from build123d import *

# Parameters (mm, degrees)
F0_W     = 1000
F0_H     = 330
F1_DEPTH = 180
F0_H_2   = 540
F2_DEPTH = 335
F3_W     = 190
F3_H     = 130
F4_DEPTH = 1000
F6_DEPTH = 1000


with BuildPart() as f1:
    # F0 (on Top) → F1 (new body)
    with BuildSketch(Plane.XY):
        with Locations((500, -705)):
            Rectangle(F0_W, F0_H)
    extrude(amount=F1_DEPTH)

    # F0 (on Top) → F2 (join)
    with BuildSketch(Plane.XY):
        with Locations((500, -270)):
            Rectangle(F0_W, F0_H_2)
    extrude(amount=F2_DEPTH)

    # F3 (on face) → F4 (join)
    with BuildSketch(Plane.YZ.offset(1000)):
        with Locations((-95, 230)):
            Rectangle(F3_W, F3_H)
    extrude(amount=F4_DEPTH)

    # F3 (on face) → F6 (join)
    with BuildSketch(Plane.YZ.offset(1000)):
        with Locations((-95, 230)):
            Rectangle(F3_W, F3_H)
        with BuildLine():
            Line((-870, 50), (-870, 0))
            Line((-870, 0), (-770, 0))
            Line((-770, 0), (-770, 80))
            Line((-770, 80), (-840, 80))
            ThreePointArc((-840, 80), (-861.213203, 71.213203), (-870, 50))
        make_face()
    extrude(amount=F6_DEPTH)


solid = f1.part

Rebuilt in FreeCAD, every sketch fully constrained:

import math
import FreeCAD as App
import Part
import Sketcher

V = App.Vector
Q = App.Units.Quantity


def add_polygon(sketch, points):
    """Adds a closed chain of lines whose ends are joined by coincident constraints."""
    first, n = sketch.GeometryCount, len(points)
    for a, b in zip(points, points[1:] + points[:1]):
        sketch.addGeometry(Part.LineSegment(App.Vector(*a, 0), App.Vector(*b, 0)), False)
    for i in range(n):
        sketch.addConstraint(Sketcher.Constraint("Coincident", first + i, 2, first + (i + 1) % n, 1))

doc = App.newDocument("Part")
body = doc.addObject("PartDesign::Body", "Body")

sketch1 = body.newObject("Sketcher::SketchObject", "Sketch")
sketch1.AttachmentSupport = (doc.getObject("XY_Plane"), [""])
sketch1.MapMode = "FlatFace"
add_polygon(sketch1, [(0, -540), (0, -870), (1000, -870), (1000, -540)])
sketch1.addConstraint([
    Sketcher.Constraint("Vertical", 0),
    Sketcher.Constraint("Horizontal", 1),
    Sketcher.Constraint("Vertical", 2),
    Sketcher.Constraint("Horizontal", 3),
    Sketcher.Constraint("PointOnObject", 0, 2, -2),
    Sketcher.Constraint("DistanceX", 1, 1, 1, 2, Q("1000 mm")),
    Sketcher.Constraint("DistanceY", 0, 2, 0, 1, Q("330 mm")),
    Sketcher.Constraint("DistanceY", 0, 2, -1, 1, Q("870 mm")),
])
pad1 = body.newObject("PartDesign::Pad", "Pad")
pad1.Profile = sketch1
pad1.Length = 180

sketch2 = body.newObject("Sketcher::SketchObject", "Sketch001")
sketch2.AttachmentSupport = (doc.getObject("XY_Plane"), [""])
sketch2.MapMode = "FlatFace"
add_polygon(sketch2, [(0, 0), (0, -540), (1000, -540), (1000, 0)])
sketch2.addConstraint([
    Sketcher.Constraint("Vertical", 0),
    Sketcher.Constraint("Horizontal", 1),
    Sketcher.Constraint("Vertical", 2),
    Sketcher.Constraint("Horizontal", 3),
    Sketcher.Constraint("Coincident", 3, 2, -1, 1),
    Sketcher.Constraint("DistanceX", 1, 1, 1, 2, Q("1000 mm")),
    Sketcher.Constraint("DistanceY", 0, 2, 0, 1, Q("540 mm")),
])
pad2 = body.newObject("PartDesign::Pad", "Pad001")
pad2.Profile = sketch2
pad2.Length = 335

sketch3 = body.newObject("Sketcher::SketchObject", "Sketch002")
sketch3.AttachmentSupport = (doc.getObject("YZ_Plane"), [""])
sketch3.MapMode = "FlatFace"
sketch3.AttachmentOffset = App.Placement(V(0, 0, 1000), App.Rotation())
add_polygon(sketch3, [(-190, 295), (-190, 165), (0, 165), (0, 295)])
sketch3.addConstraint([
    Sketcher.Constraint("Vertical", 0),
    Sketcher.Constraint("Horizontal", 1),
    Sketcher.Constraint("Vertical", 2),
    Sketcher.Constraint("Horizontal", 3),
    Sketcher.Constraint("PointOnObject", 1, 2, -2),
    Sketcher.Constraint("DistanceX", 1, 1, 1, 2, Q("190 mm")),
    Sketcher.Constraint("DistanceY", 0, 2, 0, 1, Q("130 mm")),
    Sketcher.Constraint("DistanceY", -1, 1, 0, 2, Q("165 mm")),
])
pad3 = body.newObject("PartDesign::Pad", "Pad002")
pad3.Profile = sketch3
pad3.Length = 1000

sketch4 = body.newObject("Sketcher::SketchObject", "Sketch003")
sketch4.AttachmentSupport = (doc.getObject("YZ_Plane"), [""])
sketch4.MapMode = "FlatFace"
sketch4.AttachmentOffset = App.Placement(V(0, 0, 1000), App.Rotation())
add_polygon(sketch4, [(-190, 295), (-190, 165), (0, 165), (0, 295)])
sketch4.addGeometry(Part.LineSegment(V(-870, 50, 0), V(-870, 0, 0)), False)
sketch4.addGeometry(Part.LineSegment(V(-870, 0, 0), V(-770, 0, 0)), False)
sketch4.addGeometry(Part.LineSegment(V(-770, 0, 0), V(-770, 80, 0)), False)
sketch4.addGeometry(Part.LineSegment(V(-770, 80, 0), V(-840, 80, 0)), False)
sketch4.addGeometry(Part.ArcOfCircle(Part.Circle(V(-840, 50, 0), V(0, 0, 1), 30), math.radians(90), math.radians(180)), False)
sketch4.addConstraint([
    Sketcher.Constraint("Coincident", 4, 2, 5, 1),
    Sketcher.Constraint("Coincident", 5, 2, 6, 1),
    Sketcher.Constraint("Coincident", 6, 2, 7, 1),
    Sketcher.Constraint("Tangent", 7, 2, 8, 1),
    Sketcher.Constraint("Tangent", 8, 2, 4, 1),
    Sketcher.Constraint("Vertical", 0),
    Sketcher.Constraint("Horizontal", 1),
    Sketcher.Constraint("Vertical", 2),
    Sketcher.Constraint("Horizontal", 3),
    Sketcher.Constraint("Vertical", 4),
    Sketcher.Constraint("Horizontal", 5),
    Sketcher.Constraint("Vertical", 6),
    Sketcher.Constraint("Horizontal", 7),
    Sketcher.Constraint("PointOnObject", 1, 2, -2),
    Sketcher.Constraint("PointOnObject", 4, 2, -1),
    Sketcher.Constraint("Radius", 8, Q("30.000001 mm")),
    Sketcher.Constraint("DistanceX", 1, 1, 1, 2, Q("190 mm")),
    Sketcher.Constraint("DistanceX", 5, 1, 5, 2, Q("100 mm")),
    Sketcher.Constraint("DistanceY", 0, 2, 0, 1, Q("130 mm")),
    Sketcher.Constraint("DistanceY", 4, 2, 4, 1, Q("50 mm")),
    Sketcher.Constraint("DistanceX", 8, 3, -1, 1, Q("839.999999 mm")),
    Sketcher.Constraint("DistanceY", -1, 1, 0, 2, Q("165 mm")),
])
pad4 = body.newObject("PartDesign::Pad", "Pad003")
pad4.Profile = sketch4
pad4.Length = 1000

doc.recompute()
